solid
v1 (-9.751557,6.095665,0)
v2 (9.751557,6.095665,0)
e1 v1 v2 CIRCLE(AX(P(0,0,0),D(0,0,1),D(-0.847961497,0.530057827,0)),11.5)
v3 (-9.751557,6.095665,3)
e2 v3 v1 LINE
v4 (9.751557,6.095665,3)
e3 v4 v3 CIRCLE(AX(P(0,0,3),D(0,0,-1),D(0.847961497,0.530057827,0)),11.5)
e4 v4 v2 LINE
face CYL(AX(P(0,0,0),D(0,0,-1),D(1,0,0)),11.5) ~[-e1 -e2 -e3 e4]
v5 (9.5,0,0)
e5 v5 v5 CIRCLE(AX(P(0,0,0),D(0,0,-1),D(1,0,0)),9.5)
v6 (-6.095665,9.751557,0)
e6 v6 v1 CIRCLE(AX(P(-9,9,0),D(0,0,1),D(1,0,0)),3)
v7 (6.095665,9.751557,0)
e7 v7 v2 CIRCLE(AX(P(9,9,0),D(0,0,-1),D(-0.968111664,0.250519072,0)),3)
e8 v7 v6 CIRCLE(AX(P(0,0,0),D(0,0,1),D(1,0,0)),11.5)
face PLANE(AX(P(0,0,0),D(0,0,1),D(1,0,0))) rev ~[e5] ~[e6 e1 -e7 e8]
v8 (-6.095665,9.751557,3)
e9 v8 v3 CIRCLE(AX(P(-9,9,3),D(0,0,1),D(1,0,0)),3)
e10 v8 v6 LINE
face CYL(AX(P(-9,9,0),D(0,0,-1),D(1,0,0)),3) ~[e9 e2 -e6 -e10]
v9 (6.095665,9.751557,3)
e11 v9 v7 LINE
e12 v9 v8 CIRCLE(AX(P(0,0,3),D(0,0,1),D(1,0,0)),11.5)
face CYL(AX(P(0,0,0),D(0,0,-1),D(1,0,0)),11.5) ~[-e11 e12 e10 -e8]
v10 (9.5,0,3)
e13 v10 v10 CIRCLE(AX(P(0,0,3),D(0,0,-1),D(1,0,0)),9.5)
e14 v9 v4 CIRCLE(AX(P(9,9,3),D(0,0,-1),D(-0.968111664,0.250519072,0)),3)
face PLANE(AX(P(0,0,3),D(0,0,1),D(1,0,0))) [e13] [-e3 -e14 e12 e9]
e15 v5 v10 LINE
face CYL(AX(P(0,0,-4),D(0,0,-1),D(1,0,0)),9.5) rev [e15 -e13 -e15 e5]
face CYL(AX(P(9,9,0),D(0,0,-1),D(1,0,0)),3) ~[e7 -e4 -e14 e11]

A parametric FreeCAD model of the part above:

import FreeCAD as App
import Part
import Sketcher

doc = App.newDocument("Part")
body = doc.addObject("PartDesign::Body", "Body")

# Sketch on XY plane
sketch1 = doc.addObject("Sketcher::SketchObject", "Sketch")
body.addObject(sketch1)
sketch1.AttachmentSupport = (doc.XY_Plane, [""])
sketch1.MapMode = "FlatFace"
sketch1.addGeometry(Part.Circle(App.Vector(9, 9, 0), App.Vector(0, 0, 1), 3), False)
sketch1.addConstraint(Sketcher.Constraint("Diameter", 0, 6.0))
sketch1.addConstraint(Sketcher.Constraint("DistanceX", -1, 1, 0, 3, 9.0))
sketch1.addConstraint(Sketcher.Constraint("DistanceY", -1, 1, 0, 3, 9.0))
pad1 = doc.addObject("PartDesign::Pad", "Pad")
body.addObject(pad1)
pad1.Profile = sketch1
pad1.Length = 3
body2 = doc.addObject("PartDesign::Body", "Body001")

# Sketch on XY plane
sketch2 = doc.addObject("Sketcher::SketchObject", "Sketch001")
body2.addObject(sketch2)
sketch2.AttachmentSupport = (doc.getObject("XY_Plane001"), [""])
sketch2.MapMode = "FlatFace"
sketch2.AttachmentOffset = App.Placement(App.Vector(0, 0, -4), App.Rotation())
sketch2.addGeometry(Part.Circle(App.Vector(0, 0, 0), App.Vector(0, 0, 1), 10), False)
sketch2.addConstraint(Sketcher.Constraint("Coincident", 0, 3, -1, 1))
sketch2.addConstraint(Sketcher.Constraint("Diameter", 0, 19.0))
pad2 = doc.addObject("PartDesign::Pad", "Pad001")
body2.addObject(pad2)
pad2.Profile = sketch2
pad2.Length = 10
body3 = doc.addObject("PartDesign::Body", "Body002")

# Sketch on XY plane
sketch3 = doc.addObject("Sketcher::SketchObject", "Sketch002")
body3.addObject(sketch3)
sketch3.AttachmentSupport = (doc.getObject("XY_Plane002"), [""])
sketch3.MapMode = "FlatFace"
sketch3.addGeometry(Part.Circle(App.Vector(0, 0, 0), App.Vector(0, 0, 1), 12), False)
sketch3.addConstraint(Sketcher.Constraint("Coincident", 0, 3, -1, 1))
sketch3.addConstraint(Sketcher.Constraint("Diameter", 0, 23.0))
pad3 = doc.addObject("PartDesign::Pad", "Pad002")
body3.addObject(pad3)
pad3.Profile = sketch3
pad3.Length = 3
doc.recompute()

boolean = doc.addObject("PartDesign::Boolean", "Boolean")
body3.addObject(boolean)
boolean.Type = "Cut"
boolean.addObjects([body2])
body4 = doc.addObject("PartDesign::Body", "Body003")
body4.AllowCompound = True

# Sketch on XY plane
sketch4 = doc.addObject("Sketcher::SketchObject", "Sketch003")
body4.addObject(sketch4)
sketch4.AttachmentSupport = (doc.getObject("XY_Plane003"), [""])
sketch4.MapMode = "FlatFace"
sketch4.addGeometry(Part.Circle(App.Vector(-9, 9, 0), App.Vector(0, 0, 1), 3), False)
sketch4.addConstraint(Sketcher.Constraint("Diameter", 0, 6.0))
sketch4.addConstraint(Sketcher.Constraint("DistanceX", 0, 3, -1, 1, 9.0))
sketch4.addConstraint(Sketcher.Constraint("DistanceY", -1, 1, 0, 3, 9.0))
pad4 = doc.addObject("PartDesign::Pad", "Pad003")
body4.addObject(pad4)
pad4.Profile = sketch4
pad4.Length = 3
doc.recompute()

boolean2 = doc.addObject("PartDesign::Boolean", "Boolean001")
body4.addObject(boolean2)
boolean2.Type = "Fuse"
boolean2.addObjects([body])
doc.recompute()

boolean3 = doc.addObject("PartDesign::Boolean", "Boolean002")
body4.addObject(boolean3)
boolean3.Type = "Fuse"
boolean3.addObjects([body3])

doc.recompute()
